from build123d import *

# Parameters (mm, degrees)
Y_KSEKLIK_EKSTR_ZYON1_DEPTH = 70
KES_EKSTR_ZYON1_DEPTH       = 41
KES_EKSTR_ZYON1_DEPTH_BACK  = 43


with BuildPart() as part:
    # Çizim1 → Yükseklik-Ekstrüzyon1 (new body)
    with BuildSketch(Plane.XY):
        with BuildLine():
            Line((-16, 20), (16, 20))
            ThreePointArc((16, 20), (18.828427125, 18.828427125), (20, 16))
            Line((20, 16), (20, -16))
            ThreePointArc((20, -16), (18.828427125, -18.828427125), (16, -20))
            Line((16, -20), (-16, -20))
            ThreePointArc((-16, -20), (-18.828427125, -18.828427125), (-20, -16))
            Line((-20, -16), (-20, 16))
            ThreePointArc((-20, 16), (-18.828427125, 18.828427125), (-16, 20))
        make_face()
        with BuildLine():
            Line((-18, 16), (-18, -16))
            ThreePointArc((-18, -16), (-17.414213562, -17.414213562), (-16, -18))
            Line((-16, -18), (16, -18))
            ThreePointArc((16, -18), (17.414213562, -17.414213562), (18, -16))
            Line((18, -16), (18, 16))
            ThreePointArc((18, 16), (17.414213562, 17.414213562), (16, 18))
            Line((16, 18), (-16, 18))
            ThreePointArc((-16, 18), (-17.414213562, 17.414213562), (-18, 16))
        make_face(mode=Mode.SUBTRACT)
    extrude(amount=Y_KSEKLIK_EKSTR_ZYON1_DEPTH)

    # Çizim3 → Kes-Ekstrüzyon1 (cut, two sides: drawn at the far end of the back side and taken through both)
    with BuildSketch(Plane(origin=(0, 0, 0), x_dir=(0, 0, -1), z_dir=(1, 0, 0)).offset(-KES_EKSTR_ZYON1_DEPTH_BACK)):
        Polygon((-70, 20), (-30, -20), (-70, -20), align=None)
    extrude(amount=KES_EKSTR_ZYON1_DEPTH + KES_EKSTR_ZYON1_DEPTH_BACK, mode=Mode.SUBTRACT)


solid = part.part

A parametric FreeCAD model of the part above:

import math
import FreeCAD as App
import Part
import Sketcher
Q = App.Units.Quantity


def add_polygon(sketch, points):
    """Adds a closed chain of lines whose ends are joined by coincident constraints."""
    first, n = sketch.GeometryCount, len(points)
    for a, b in zip(points, points[1:] + points[:1]):
        sketch.addGeometry(Part.LineSegment(App.Vector(*a, 0), App.Vector(*b, 0)), False)
    for i in range(n):
        sketch.addConstraint(Sketcher.Constraint("Coincident", first + i, 2, first + (i + 1) % n, 1))

doc = App.newDocument("Part")
params = doc.addObject("Spreadsheet::Sheet", "Params")
for row, (alias, value) in enumerate([
    ("sketch1_radius", "4 mm"),
    ("sketch1_radius2", "2 mm"),
    ("sketch1_width", "32 mm"),
    ("pad1_length", "70 mm"),
    ("sketch2_width", "40 mm"),
], start=1):
    params.set(f"A{row}", alias)
    params.set(f"B{row}", "=" + value)
    params.setAlias(f"B{row}", alias)

body = doc.addObject("PartDesign::Body", "Body")

sketch1 = body.newObject("Sketcher::SketchObject", "Sketch")
sketch1.AttachmentSupport = (doc.getObject("XY_Plane"), [""])
sketch1.MapMode = "FlatFace"
sketch1.addGeometry([
    Part.LineSegment(App.Vector(16, 20, 0), App.Vector(-16, 20, 0)),
    Part.ArcOfCircle(Part.Circle(App.Vector(-16, 16, 0), App.Vector(0, 0, 1), 4), math.radians(90), math.radians(180)),
    Part.LineSegment(App.Vector(-20, 16, 0), App.Vector(-20, -16, 0)),
    Part.ArcOfCircle(Part.Circle(App.Vector(-16, -16, 0), App.Vector(0, 0, 1), 4), math.radians(180), math.radians(270)),
    Part.LineSegment(App.Vector(-16, -20, 0), App.Vector(16, -20, 0)),
    Part.ArcOfCircle(Part.Circle(App.Vector(16, -16, 0), App.Vector(0, 0, 1), 4), math.radians(-90), math.radians(0)),
    Part.LineSegment(App.Vector(20, -16, 0), App.Vector(20, 16, 0)),
    Part.ArcOfCircle(Part.Circle(App.Vector(16, 16, 0), App.Vector(0, 0, 1), 4), math.radians(0), math.radians(90)),
    Part.ArcOfCircle(Part.Circle(App.Vector(-16, 16, 0), App.Vector(0, 0, 1), 2), math.radians(90), math.radians(180)),
    Part.LineSegment(App.Vector(-16, 18, 0), App.Vector(16, 18, 0)),
    Part.ArcOfCircle(Part.Circle(App.Vector(16, 16, 0), App.Vector(0, 0, 1), 2), math.radians(0), math.radians(90)),
    Part.LineSegment(App.Vector(18, 16, 0), App.Vector(18, -16, 0)),
    Part.ArcOfCircle(Part.Circle(App.Vector(16, -16, 0), App.Vector(0, 0, 1), 2), math.radians(-90), math.radians(0)),
    Part.LineSegment(App.Vector(16, -18, 0), App.Vector(-16, -18, 0)),
    Part.ArcOfCircle(Part.Circle(App.Vector(-16, -16, 0), App.Vector(0, 0, 1), 2), math.radians(-180), math.radians(-90)),
    Part.LineSegment(App.Vector(-18, -16, 0), App.Vector(-18, 16, 0)),
], False)
sketch1.addConstraint([
    Sketcher.Constraint("Tangent", 0, 2, 1, 1),
    Sketcher.Constraint("Tangent", 1, 2, 2, 1),
    Sketcher.Constraint("Tangent", 2, 2, 3, 1),
    Sketcher.Constraint("Tangent", 3, 2, 4, 1),
    Sketcher.Constraint("Tangent", 4, 2, 5, 1),
    Sketcher.Constraint("Tangent", 5, 2, 6, 1),
    Sketcher.Constraint("Tangent", 6, 2, 7, 1),
    Sketcher.Constraint("Tangent", 7, 2, 0, 1),
    Sketcher.Constraint("Tangent", 8, 1, 9, 1),
    Sketcher.Constraint("Tangent", 9, 2, 10, 2),
    Sketcher.Constraint("Tangent", 10, 1, 11, 1),
    Sketcher.Constraint("Tangent", 11, 2, 12, 2),
    Sketcher.Constraint("Tangent", 12, 1, 13, 1),
    Sketcher.Constraint("Tangent", 13, 2, 14, 2),
    Sketcher.Constraint("Tangent", 14, 1, 15, 1),
    Sketcher.Constraint("Tangent", 15, 2, 8, 2),
    Sketcher.Constraint("Horizontal", 0),
    Sketcher.Constraint("Vertical", 2),
    Sketcher.Constraint("Horizontal", 4),
    Sketcher.Constraint("Vertical", 6),
    Sketcher.Constraint("Horizontal", 9),
    Sketcher.Constraint("Vertical", 11),
    Sketcher.Constraint("Horizontal", 13),
    Sketcher.Constraint("Vertical", 15),
    Sketcher.Constraint("Coincident", 8, 3, 1, 3),
    Sketcher.Constraint("Coincident", 10, 3, 7, 3),
    Sketcher.Constraint("Coincident", 12, 3, 5, 3),
    Sketcher.Constraint("Equal", 1, 3),
    Sketcher.Constraint("Equal", 3, 5),
    Sketcher.Constraint("Equal", 5, 7),
    Sketcher.Constraint("Equal", 12, 14),
    Sketcher.Constraint("Symmetric", 1, 3, 5, 3, -1, 1),
    Sketcher.Constraint("Equal", 13, 2),
    Sketcher.Constraint("Radius", 1, Q("4 mm")),
    Sketcher.Constraint("Radius", 8, Q("2 mm")),
    Sketcher.Constraint("DistanceX", 0, 2, 0, 1, Q("32 mm")),
])
sketch1.setExpression("Constraints[33]", "Params.sketch1_radius")
sketch1.setExpression("Constraints[34]", "Params.sketch1_radius2")
sketch1.setExpression("Constraints[35]", "Params.sketch1_width")
pad1 = body.newObject("PartDesign::Pad", "Pad")
pad1.Profile = sketch1
pad1.setExpression("Length", "Params.pad1_length")

sketch2 = body.newObject("Sketcher::SketchObject", "Sketch001")
sketch2.AttachmentSupport = (doc.getObject("YZ_Plane"), [""])
sketch2.MapMode = "FlatFace"
add_polygon(sketch2, [(-20, 30), (20, 70), (-20, 70)])
sketch2.addConstraint([
    Sketcher.Constraint("Horizontal", 1),
    Sketcher.Constraint("Vertical", 2),
    Sketcher.Constraint("Equal", 1, 2),
    Sketcher.Constraint("DistanceX", 1, 2, 1, 1, Q("40 mm")),
    Sketcher.Constraint("DistanceX", -1, 1, 0, 2, Q("20 mm")),
    Sketcher.Constraint("DistanceY", -1, 1, 0, 2, Q("70 mm")),
])
sketch2.setExpression("Constraints[6]", "Params.sketch2_width")
pocket1 = body.newObject("PartDesign::Pocket", "Pocket")
pocket1.Profile = sketch2
pocket1.Type = "ThroughAll"
pocket1.Midplane = True

doc.recompute()
